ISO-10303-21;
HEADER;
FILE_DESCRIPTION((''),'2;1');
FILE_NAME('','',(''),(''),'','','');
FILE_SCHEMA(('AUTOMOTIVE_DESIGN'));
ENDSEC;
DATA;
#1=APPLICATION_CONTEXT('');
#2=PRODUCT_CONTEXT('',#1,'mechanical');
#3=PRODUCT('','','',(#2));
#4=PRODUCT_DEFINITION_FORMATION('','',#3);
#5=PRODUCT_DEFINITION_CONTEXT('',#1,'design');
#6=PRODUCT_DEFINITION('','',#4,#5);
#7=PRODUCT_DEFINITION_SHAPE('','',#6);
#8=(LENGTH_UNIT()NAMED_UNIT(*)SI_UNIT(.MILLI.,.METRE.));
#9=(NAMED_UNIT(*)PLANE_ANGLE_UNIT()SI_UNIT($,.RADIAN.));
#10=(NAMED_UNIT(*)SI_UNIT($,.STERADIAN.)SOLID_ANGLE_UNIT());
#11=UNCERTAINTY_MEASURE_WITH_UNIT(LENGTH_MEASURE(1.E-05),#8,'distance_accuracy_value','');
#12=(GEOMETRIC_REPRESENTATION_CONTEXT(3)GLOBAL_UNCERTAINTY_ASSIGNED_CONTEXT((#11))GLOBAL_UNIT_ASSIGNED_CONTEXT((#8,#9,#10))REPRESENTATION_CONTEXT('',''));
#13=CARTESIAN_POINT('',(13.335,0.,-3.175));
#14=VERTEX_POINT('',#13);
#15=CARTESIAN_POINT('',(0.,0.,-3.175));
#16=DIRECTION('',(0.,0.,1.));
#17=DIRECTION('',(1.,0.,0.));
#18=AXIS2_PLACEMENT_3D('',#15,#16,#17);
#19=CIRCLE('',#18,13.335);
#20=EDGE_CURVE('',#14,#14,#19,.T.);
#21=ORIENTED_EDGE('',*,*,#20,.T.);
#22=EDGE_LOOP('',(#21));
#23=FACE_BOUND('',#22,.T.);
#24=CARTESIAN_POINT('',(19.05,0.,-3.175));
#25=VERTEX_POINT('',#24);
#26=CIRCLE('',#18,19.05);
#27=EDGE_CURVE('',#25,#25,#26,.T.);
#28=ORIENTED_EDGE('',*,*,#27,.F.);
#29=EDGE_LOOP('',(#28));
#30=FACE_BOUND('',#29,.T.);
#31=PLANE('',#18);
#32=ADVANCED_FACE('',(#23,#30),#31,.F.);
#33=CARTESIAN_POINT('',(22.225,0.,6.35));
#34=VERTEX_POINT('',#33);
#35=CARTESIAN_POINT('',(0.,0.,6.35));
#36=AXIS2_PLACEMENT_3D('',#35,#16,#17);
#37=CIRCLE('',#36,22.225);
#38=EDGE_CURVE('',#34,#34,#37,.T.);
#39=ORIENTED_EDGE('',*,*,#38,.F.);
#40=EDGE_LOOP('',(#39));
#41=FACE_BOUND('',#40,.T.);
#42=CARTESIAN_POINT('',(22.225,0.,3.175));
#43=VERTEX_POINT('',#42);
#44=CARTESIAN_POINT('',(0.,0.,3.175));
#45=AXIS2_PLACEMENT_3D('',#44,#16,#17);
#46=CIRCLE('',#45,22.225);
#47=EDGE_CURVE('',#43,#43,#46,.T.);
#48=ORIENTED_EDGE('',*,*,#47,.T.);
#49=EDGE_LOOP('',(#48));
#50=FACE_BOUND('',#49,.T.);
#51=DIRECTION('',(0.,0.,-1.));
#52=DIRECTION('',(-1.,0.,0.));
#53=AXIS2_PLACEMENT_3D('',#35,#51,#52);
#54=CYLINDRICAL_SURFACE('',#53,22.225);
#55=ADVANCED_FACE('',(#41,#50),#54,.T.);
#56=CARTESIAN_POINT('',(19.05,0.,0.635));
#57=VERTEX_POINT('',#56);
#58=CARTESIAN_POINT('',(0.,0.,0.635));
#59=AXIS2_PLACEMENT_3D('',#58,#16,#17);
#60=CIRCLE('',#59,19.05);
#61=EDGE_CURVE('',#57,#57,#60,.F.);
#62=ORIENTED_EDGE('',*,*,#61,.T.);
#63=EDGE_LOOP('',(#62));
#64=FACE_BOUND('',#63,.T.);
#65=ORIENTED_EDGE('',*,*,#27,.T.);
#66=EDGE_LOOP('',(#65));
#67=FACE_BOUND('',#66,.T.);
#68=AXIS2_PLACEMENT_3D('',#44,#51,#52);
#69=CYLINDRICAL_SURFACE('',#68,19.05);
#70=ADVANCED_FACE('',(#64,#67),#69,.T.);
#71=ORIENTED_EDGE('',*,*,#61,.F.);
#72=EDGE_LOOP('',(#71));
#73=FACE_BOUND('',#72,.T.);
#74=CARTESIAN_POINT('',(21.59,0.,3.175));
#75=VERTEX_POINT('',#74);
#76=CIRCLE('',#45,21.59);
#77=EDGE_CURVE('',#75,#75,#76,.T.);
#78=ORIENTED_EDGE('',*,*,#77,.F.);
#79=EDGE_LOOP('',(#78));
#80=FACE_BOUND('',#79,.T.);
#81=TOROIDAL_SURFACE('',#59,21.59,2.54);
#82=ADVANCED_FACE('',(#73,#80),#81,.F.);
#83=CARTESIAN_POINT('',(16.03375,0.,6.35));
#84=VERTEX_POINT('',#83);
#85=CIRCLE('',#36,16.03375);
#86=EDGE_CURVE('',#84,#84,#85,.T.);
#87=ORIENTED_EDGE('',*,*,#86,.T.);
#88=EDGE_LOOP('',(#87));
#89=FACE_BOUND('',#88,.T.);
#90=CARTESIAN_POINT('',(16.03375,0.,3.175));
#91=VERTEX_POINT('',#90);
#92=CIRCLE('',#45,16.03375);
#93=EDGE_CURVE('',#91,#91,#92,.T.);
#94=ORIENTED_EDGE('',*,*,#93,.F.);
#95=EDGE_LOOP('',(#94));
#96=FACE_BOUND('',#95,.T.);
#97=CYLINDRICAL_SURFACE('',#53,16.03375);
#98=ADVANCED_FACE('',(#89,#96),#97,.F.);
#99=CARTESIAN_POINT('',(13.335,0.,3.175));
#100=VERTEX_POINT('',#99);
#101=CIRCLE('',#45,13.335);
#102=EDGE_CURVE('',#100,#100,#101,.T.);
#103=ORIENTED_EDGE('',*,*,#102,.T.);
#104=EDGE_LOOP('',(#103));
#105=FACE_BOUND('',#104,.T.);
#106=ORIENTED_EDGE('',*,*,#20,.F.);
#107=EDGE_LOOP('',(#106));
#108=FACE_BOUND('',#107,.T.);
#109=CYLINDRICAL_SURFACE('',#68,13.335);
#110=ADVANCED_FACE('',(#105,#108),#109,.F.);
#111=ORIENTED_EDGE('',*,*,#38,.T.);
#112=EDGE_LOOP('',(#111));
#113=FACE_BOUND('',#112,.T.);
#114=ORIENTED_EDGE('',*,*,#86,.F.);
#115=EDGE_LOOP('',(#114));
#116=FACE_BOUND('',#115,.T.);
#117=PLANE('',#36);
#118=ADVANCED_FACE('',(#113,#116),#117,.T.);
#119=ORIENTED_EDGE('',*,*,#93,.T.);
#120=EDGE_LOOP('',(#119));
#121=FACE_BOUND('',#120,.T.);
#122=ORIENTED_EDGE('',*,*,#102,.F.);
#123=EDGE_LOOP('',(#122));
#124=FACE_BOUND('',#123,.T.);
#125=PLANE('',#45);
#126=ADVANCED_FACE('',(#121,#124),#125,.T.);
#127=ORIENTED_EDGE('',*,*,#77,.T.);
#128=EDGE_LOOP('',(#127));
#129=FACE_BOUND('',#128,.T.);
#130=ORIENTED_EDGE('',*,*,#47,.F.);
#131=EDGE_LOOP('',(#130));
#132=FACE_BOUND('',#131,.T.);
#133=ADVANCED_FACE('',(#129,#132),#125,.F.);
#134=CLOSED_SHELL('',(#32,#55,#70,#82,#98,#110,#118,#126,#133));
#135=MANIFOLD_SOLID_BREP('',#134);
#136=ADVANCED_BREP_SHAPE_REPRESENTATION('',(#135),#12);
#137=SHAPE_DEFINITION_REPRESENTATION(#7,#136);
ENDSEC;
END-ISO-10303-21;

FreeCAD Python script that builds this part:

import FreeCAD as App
import Part
import Sketcher

V = App.Vector
Q = App.Units.Quantity


def edges_at(feature, points):
    """Names of the edges that pass closest to the given points."""
    edges = feature.Shape.Edges
    near = lambda p: min(range(len(edges)), key=lambda i: edges[i].distToShape(Part.Vertex(*p))[0])
    return sorted({f"Edge{near(p) + 1}" for p in points})

doc = App.newDocument("Part")
body = doc.addObject("PartDesign::Body", "Body")

sketch1 = body.newObject("Sketcher::SketchObject", "Sketch")
sketch1.AttachmentSupport = (doc.getObject("XY_Plane"), [""])
sketch1.MapMode = "FlatFace"
sketch1.addGeometry(Part.Circle(V(0, 0, 0), V(0, 0, 1), 19), False)
sketch1.addGeometry(Part.Circle(V(0, 0, 0), V(0, 0, 1), 13), False)
sketch1.addConstraint(Sketcher.Constraint("Coincident", 0, 3, -1, 1))
sketch1.addConstraint(Sketcher.Constraint("Coincident", 1, 3, -1, 1))
sketch1.addConstraint(Sketcher.Constraint("Diameter", 0, Q("1.5 in")))
sketch1.addConstraint(Sketcher.Constraint("Diameter", 1, Q("1.05 in")))
pad1 = body.newObject("PartDesign::Pad", "Pad")
pad1.Profile = sketch1
pad1.Length = Q("0.25 in")
pad1.Midplane = True

sketch2 = body.newObject("Sketcher::SketchObject", "Sketch001")
sketch2.AttachmentSupport = (doc.getObject("XY_Plane"), [""])
sketch2.MapMode = "FlatFace"
sketch2.AttachmentOffset = App.Placement(V(0, 0, 0.125 * 25.4), App.Rotation())
sketch2.addGeometry(Part.Circle(V(0, 0, 0), V(0, 0, 1), 22), False)
sketch2.addGeometry(Part.Circle(V(0, 0, 0), V(0, 0, 1), 16), False)
sketch2.addConstraint(Sketcher.Constraint("Coincident", 0, 3, -1, 1))
sketch2.addConstraint(Sketcher.Constraint("Coincident", 1, 3, -1, 1))
sketch2.addConstraint(Sketcher.Constraint("Diameter", 0, Q("1.75 in")))
sketch2.addConstraint(Sketcher.Constraint("Diameter", 1, Q("1.2625 in")))
pad2 = body.newObject("PartDesign::Pad", "Pad001")
pad2.Profile = sketch2
pad2.Length = Q("0.125 in")
doc.recompute()

fillet = body.newObject("PartDesign::Fillet", "Fillet")
fillet.Base = (pad2, edges_at(pad2, [(-19.05, 0, 3.175)]))
fillet.Radius = Q("0.1 in")

doc.recompute()
